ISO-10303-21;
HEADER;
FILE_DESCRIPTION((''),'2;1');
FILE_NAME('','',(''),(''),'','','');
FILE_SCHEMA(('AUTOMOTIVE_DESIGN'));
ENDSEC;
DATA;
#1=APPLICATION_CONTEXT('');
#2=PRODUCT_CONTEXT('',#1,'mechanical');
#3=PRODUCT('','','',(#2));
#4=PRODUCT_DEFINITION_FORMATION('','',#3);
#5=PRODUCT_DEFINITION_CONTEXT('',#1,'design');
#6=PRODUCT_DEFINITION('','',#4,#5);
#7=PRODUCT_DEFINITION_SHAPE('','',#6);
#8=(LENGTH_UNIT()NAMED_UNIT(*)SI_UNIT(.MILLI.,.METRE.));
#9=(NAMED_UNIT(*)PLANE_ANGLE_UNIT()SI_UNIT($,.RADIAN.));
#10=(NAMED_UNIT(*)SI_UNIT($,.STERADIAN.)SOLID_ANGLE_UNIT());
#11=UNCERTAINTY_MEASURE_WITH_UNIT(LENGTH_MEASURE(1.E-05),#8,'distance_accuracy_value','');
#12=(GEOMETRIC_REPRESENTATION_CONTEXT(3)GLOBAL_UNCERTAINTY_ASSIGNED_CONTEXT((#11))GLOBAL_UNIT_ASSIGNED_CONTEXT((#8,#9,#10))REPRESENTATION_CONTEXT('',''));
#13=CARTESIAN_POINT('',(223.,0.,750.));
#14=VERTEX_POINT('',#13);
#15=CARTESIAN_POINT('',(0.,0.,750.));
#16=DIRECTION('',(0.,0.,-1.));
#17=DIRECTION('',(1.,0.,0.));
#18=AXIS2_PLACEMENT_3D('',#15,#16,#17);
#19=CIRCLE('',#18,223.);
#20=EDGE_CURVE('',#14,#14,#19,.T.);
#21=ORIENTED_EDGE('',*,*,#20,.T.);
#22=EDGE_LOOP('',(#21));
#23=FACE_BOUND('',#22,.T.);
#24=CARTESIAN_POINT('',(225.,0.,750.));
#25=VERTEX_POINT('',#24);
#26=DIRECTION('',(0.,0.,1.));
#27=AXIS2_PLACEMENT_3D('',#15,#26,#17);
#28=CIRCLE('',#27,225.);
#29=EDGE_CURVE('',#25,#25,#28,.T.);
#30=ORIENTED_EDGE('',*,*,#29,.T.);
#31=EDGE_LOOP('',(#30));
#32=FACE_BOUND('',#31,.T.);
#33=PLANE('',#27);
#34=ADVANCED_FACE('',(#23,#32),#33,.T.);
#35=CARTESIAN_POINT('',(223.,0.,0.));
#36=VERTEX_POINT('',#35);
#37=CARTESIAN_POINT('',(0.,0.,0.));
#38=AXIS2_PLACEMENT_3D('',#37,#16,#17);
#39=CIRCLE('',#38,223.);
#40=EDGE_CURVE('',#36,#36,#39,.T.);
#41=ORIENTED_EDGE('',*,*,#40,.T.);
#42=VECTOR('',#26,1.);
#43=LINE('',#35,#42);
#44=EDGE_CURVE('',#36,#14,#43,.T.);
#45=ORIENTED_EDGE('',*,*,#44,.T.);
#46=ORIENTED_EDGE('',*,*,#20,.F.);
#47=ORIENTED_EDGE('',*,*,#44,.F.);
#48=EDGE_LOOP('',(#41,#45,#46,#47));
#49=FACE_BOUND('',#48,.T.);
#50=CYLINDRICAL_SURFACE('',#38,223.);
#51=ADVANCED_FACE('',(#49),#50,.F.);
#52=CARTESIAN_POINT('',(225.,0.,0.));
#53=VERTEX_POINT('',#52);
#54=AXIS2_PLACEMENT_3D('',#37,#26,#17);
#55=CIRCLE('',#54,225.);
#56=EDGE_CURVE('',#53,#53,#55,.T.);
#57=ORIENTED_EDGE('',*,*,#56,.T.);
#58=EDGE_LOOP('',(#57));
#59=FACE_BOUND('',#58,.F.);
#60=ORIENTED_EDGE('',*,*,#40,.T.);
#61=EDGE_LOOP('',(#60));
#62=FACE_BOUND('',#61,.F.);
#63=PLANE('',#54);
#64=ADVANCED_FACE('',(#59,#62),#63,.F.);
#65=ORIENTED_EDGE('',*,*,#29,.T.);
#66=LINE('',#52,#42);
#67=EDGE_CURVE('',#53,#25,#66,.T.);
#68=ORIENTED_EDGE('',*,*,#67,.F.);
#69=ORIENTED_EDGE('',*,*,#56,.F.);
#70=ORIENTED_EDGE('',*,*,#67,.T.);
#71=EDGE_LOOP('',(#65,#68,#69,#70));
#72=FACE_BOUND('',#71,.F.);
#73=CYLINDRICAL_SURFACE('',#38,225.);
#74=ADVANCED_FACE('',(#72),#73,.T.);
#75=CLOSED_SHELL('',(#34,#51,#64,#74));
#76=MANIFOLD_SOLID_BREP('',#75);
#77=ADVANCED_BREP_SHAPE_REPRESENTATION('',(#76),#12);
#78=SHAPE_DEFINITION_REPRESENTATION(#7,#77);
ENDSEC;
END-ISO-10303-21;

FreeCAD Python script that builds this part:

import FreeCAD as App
import Part
import Sketcher

V = App.Vector
Q = App.Units.Quantity


def faces_at(feature, points):
    """Names of the faces that lie closest to the given points."""
    faces = feature.Shape.Faces
    near = lambda p: min(range(len(faces)), key=lambda i: faces[i].distToShape(Part.Vertex(*p))[0])
    return sorted({f"Face{near(p) + 1}" for p in points})

doc = App.newDocument("Part")
body = doc.addObject("PartDesign::Body", "Body")

# Sketch on XY plane
sketch1 = body.newObject("Sketcher::SketchObject", "Sketch")
sketch1.AttachmentSupport = (doc.getObject("XY_Plane"), [""])
sketch1.MapMode = "FlatFace"
sketch1.addGeometry(Part.Circle(V(0, 0, 0), V(0, 0, 1), 225), False)
sketch1.addConstraint(Sketcher.Constraint("Coincident", 0, 3, -1, 1))
sketch1.addConstraint(Sketcher.Constraint("Diameter", 0, Q("450 mm")))
pad1 = body.newObject("PartDesign::Pad", "Pad")
pad1.Profile = sketch1
pad1.Length = 750
doc.recompute()

thickness = body.newObject("PartDesign::Thickness", "Thickness")
thickness.Base = (pad1, faces_at(pad1, [(-110.303, -47.211, 0), (-110.303, -47.211, 750)]))
thickness.Value = 2
thickness.Reversed = True
thickness.Join = "Intersection"

doc.recompute()
